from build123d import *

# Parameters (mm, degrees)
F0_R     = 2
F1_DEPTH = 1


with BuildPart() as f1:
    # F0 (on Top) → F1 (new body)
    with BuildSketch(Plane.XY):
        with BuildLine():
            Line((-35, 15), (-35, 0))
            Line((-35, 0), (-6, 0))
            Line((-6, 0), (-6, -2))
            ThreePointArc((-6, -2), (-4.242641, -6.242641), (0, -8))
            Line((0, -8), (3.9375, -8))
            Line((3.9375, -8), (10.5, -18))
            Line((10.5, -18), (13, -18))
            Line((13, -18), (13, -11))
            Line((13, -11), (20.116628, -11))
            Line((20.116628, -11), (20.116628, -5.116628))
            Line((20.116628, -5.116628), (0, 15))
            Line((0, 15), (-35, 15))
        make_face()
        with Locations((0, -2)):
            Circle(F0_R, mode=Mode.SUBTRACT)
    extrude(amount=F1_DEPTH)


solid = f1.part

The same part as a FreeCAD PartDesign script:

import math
import FreeCAD as App
import Part
import Sketcher
from FreeCAD import Vector
Q = App.Units.Quantity

doc = App.newDocument("Part")
body = doc.addObject("PartDesign::Body", "Body")

sketch1 = doc.addObject("Sketcher::SketchObject", "Sketch")
body.addObject(sketch1)
sketch1.AttachmentSupport = (doc.XY_Plane, [""])
sketch1.MapMode = "FlatFace"
sketch1.addGeometry(Part.LineSegment(Vector(-35, 15, 0), Vector(-35, 0, 0)), False)
sketch1.addGeometry(Part.LineSegment(Vector(-35, 0, 0), Vector(-6, 0, 0)), False)
sketch1.addGeometry(Part.LineSegment(Vector(-6, 0, 0), Vector(-6, -2, 0)), False)
sketch1.addGeometry(Part.ArcOfCircle(Part.Circle(Vector(0, -2, 0), Vector(0, 0, 1), 6), math.radians(180), math.radians(270)), False)
sketch1.addGeometry(Part.LineSegment(Vector(0, -8, 0), Vector(3.9, -8, 0)), False)
sketch1.addGeometry(Part.LineSegment(Vector(3.9, -8, 0), Vector(10.5, -18, 0)), False)
sketch1.addGeometry(Part.LineSegment(Vector(10.5, -18, 0), Vector(13, -18, 0)), False)
sketch1.addGeometry(Part.LineSegment(Vector(13, -18, 0), Vector(13, -11, 0)), False)
sketch1.addGeometry(Part.LineSegment(Vector(13, -11, 0), Vector(20.1, -11, 0)), False)
sketch1.addGeometry(Part.LineSegment(Vector(20.1, -11, 0), Vector(20.1, -5.1, 0)), False)
sketch1.addGeometry(Part.LineSegment(Vector(20.1, -5.1, 0), Vector(0, 15, 0)), False)
sketch1.addGeometry(Part.LineSegment(Vector(0, 15, 0), Vector(-35, 15, 0)), False)
sketch1.addGeometry(Part.Circle(Vector(0, -2, 0), Vector(0, 0, 1), 2), False)
sketch1.addConstraint(Sketcher.Constraint("Coincident", 0, 2, 1, 1))
sketch1.addConstraint(Sketcher.Constraint("Coincident", 1, 2, 2, 1))
sketch1.addConstraint(Sketcher.Constraint("Tangent", 2, 2, 3, 1))
sketch1.addConstraint(Sketcher.Constraint("Tangent", 3, 2, 4, 1))
sketch1.addConstraint(Sketcher.Constraint("Coincident", 4, 2, 5, 1))
sketch1.addConstraint(Sketcher.Constraint("Coincident", 5, 2, 6, 1))
sketch1.addConstraint(Sketcher.Constraint("Coincident", 6, 2, 7, 1))
sketch1.addConstraint(Sketcher.Constraint("Coincident", 7, 2, 8, 1))
sketch1.addConstraint(Sketcher.Constraint("Coincident", 8, 2, 9, 1))
sketch1.addConstraint(Sketcher.Constraint("Coincident", 9, 2, 10, 1))
sketch1.addConstraint(Sketcher.Constraint("Coincident", 10, 2, 11, 1))
sketch1.addConstraint(Sketcher.Constraint("Coincident", 11, 2, 0, 1))
sketch1.addConstraint(Sketcher.Constraint("Vertical", 0))
sketch1.addConstraint(Sketcher.Constraint("Horizontal", 1))
sketch1.addConstraint(Sketcher.Constraint("Vertical", 2))
sketch1.addConstraint(Sketcher.Constraint("Horizontal", 4))
sketch1.addConstraint(Sketcher.Constraint("Horizontal", 6))
sketch1.addConstraint(Sketcher.Constraint("Vertical", 7))
sketch1.addConstraint(Sketcher.Constraint("Horizontal", 8))
sketch1.addConstraint(Sketcher.Constraint("Vertical", 9))
sketch1.addConstraint(Sketcher.Constraint("Horizontal", 11))
sketch1.addConstraint(Sketcher.Constraint("Coincident", 12, 3, 3, 3))
sketch1.addConstraint(Sketcher.Constraint("PointOnObject", 3, 3, -2))
sketch1.addConstraint(Sketcher.Constraint("PointOnObject", 0, 2, -1))
sketch1.addConstraint(Sketcher.Constraint("PointOnObject", 10, 2, -2))
sketch1.addConstraint(Sketcher.Constraint("Diameter", 12, Q("4 mm")))
sketch1.addConstraint(Sketcher.Constraint("Radius", 3, Q("5.999999 mm")))
sketch1.addConstraint(Sketcher.Constraint("DistanceX", 1, 1, 1, 2, Q("29 mm")))
sketch1.addConstraint(Sketcher.Constraint("DistanceY", 0, 2, 0, 1, Q("15 mm")))
sketch1.addConstraint(Sketcher.Constraint("DistanceY", 2, 2, 2, 1, Q("2 mm")))
sketch1.addConstraint(Sketcher.Constraint("DistanceY", 7, 1, 7, 2, Q("7 mm")))
sketch1.addConstraint(Sketcher.Constraint("Angle", 10, Q("135 deg")))
sketch1.addConstraint(Sketcher.Constraint("DistanceX", 6, 1, 6, 2, Q("2.5 mm")))
sketch1.addConstraint(Sketcher.Constraint("DistanceY", 5, 2, -1, 1, Q("18 mm")))
sketch1.addConstraint(Sketcher.Constraint("DistanceX", -1, 1, 6, 2, Q("13 mm")))
sketch1.addConstraint(Sketcher.Constraint("DistanceX", 4, 1, 4, 2, Q("3.9375 mm")))
sketch1.addConstraint(Sketcher.Constraint("DistanceY", 9, 1, 9, 2, Q("5.883372 mm")))
pad1 = doc.addObject("PartDesign::Pad", "Pad")
body.addObject(pad1)
pad1.Profile = sketch1
pad1.Length = 1

doc.recompute()
